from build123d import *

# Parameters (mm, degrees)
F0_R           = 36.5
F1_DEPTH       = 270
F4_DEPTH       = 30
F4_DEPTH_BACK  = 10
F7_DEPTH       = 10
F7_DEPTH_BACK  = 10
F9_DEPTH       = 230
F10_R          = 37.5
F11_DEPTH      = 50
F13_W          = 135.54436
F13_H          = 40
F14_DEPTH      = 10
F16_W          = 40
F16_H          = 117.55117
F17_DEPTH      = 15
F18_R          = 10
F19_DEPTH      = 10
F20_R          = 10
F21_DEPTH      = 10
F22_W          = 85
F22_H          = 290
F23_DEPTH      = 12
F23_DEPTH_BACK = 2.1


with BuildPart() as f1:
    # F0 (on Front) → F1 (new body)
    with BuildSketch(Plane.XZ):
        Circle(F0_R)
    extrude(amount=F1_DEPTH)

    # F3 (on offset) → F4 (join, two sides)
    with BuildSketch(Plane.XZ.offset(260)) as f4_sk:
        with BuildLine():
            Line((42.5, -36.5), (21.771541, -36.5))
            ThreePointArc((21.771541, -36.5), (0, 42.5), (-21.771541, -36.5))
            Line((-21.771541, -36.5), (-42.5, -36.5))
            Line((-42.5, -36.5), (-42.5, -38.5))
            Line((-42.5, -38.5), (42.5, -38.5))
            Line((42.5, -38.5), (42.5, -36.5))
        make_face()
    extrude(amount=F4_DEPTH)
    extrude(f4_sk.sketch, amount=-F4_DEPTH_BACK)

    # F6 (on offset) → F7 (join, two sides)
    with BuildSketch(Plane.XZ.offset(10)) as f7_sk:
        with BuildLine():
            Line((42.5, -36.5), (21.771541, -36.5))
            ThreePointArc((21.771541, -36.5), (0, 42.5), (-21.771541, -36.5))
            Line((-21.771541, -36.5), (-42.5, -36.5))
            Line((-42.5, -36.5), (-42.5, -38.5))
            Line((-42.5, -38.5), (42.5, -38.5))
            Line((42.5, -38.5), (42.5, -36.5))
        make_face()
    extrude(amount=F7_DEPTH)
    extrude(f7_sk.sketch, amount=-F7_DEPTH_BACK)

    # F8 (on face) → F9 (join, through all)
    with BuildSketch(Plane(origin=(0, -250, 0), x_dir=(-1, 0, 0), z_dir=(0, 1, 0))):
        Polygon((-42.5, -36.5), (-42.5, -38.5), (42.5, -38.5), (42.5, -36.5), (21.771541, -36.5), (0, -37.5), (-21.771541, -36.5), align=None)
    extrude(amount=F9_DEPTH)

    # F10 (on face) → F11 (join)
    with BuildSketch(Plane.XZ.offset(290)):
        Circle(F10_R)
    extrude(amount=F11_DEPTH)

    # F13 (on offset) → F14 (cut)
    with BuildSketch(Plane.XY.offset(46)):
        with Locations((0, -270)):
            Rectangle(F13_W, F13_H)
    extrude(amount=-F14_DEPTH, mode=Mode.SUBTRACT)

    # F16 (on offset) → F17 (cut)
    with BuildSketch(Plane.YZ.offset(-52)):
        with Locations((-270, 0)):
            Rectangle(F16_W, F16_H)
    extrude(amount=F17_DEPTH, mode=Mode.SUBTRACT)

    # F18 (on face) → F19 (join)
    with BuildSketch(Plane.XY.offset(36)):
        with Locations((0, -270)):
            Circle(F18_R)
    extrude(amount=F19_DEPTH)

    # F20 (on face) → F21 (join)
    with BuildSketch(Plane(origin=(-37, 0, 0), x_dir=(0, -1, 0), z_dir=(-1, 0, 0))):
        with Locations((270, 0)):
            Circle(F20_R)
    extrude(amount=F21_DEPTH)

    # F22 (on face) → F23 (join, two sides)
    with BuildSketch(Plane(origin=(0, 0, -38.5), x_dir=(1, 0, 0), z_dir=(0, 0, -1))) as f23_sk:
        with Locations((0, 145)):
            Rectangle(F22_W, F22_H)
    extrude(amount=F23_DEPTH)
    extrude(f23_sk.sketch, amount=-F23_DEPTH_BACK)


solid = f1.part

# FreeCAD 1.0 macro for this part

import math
import FreeCAD as App
import Part
import Sketcher


def add_polygon(sketch, points):
    """Adds a closed chain of lines whose ends are joined by coincident constraints."""
    first, n = sketch.GeometryCount, len(points)
    for a, b in zip(points, points[1:] + points[:1]):
        sketch.addGeometry(Part.LineSegment(App.Vector(*a, 0), App.Vector(*b, 0)), False)
    for i in range(n):
        sketch.addConstraint(Sketcher.Constraint("Coincident", first + i, 2, first + (i + 1) % n, 1))

doc = App.newDocument("Part")
body = doc.addObject("PartDesign::Body", "Body")

# Sketch on XZ plane
sketch1 = doc.addObject("Sketcher::SketchObject", "Sketch")
body.addObject(sketch1)
sketch1.AttachmentSupport = (doc.XZ_Plane, [""])
sketch1.MapMode = "FlatFace"
sketch1.addGeometry(Part.Circle(App.Vector(0, 0, 0), App.Vector(0, 0, 1), 36), False)
sketch1.addConstraint([
    Sketcher.Constraint("Coincident", 0, 3, -1, 1),
    Sketcher.Constraint("Diameter", 0, 73.0),
])
pad1 = doc.addObject("PartDesign::Pad", "Pad")
body.addObject(pad1)
pad1.Profile = sketch1
pad1.Length = 270

# Sketch on XZ plane
sketch2 = doc.addObject("Sketcher::SketchObject", "Sketch001")
body.addObject(sketch2)
sketch2.AttachmentSupport = (doc.XZ_Plane, [""])
sketch2.MapMode = "FlatFace"
sketch2.AttachmentOffset = App.Placement(App.Vector(0, 0, 260), App.Rotation())
sketch2.addGeometry([
    Part.LineSegment(App.Vector(42.5, -36.5, 0), App.Vector(21.8, -36.5, 0)),  # 0
    Part.ArcOfCircle(Part.Circle(App.Vector(0, 0, 0), App.Vector(0, 0, 1), 42.5), math.radians(-59), math.radians(239)),  # 1
    Part.LineSegment(App.Vector(-21.8, -36.5, 0), App.Vector(-42.5, -36.5, 0)),  # 2
    Part.LineSegment(App.Vector(-42.5, -36.5, 0), App.Vector(-42.5, -38.5, 0)),  # 3
    Part.LineSegment(App.Vector(-42.5, -38.5, 0), App.Vector(42.5, -38.5, 0)),  # 4
    Part.LineSegment(App.Vector(42.5, -38.5, 0), App.Vector(42.5, -36.5, 0)),  # 5
], False)
sketch2.addConstraint([
    Sketcher.Constraint("Coincident", 0, 2, 1, 1),
    Sketcher.Constraint("Coincident", 1, 2, 2, 1),
    Sketcher.Constraint("Coincident", 2, 2, 3, 1),
    Sketcher.Constraint("Coincident", 3, 2, 4, 1),
    Sketcher.Constraint("Coincident", 4, 2, 5, 1),
    Sketcher.Constraint("Coincident", 5, 2, 0, 1),
    Sketcher.Constraint("Horizontal", 0),
    Sketcher.Constraint("Horizontal", 2),
    Sketcher.Constraint("Vertical", 3),
    Sketcher.Constraint("Horizontal", 4),
    Sketcher.Constraint("Vertical", 5),
    Sketcher.Constraint("Coincident", 1, 3, -1, 1),
    Sketcher.Constraint("Symmetric", 2, 2, 5, 2, -2),
    Sketcher.Constraint("Radius", 1, 42.5),
    Sketcher.Constraint("DistanceX", 4, 1, 4, 2, 85.0),
    Sketcher.Constraint("DistanceY", 3, 2, 3, 1, 2.0),
    Sketcher.Constraint("DistanceY", 0, 2, -1, 1, 36.5),
])
pad2 = doc.addObject("PartDesign::Pad", "Pad001")
body.addObject(pad2)
pad2.Profile = sketch2
pad2.Type = "TwoLengths"
pad2.Length = 30
pad2.Length2 = 10

# Sketch on XZ plane
sketch3 = doc.addObject("Sketcher::SketchObject", "Sketch002")
body.addObject(sketch3)
sketch3.AttachmentSupport = (doc.XZ_Plane, [""])
sketch3.MapMode = "FlatFace"
sketch3.AttachmentOffset = App.Placement(App.Vector(0, 0, 10), App.Rotation())
sketch3.addGeometry([
    Part.LineSegment(App.Vector(42.5, -36.5, 0), App.Vector(21.8, -36.5, 0)),  # 0
    Part.ArcOfCircle(Part.Circle(App.Vector(0, 0, 0), App.Vector(0, 0, 1), 42.5), math.radians(-59), math.radians(239)),  # 1
    Part.LineSegment(App.Vector(-21.8, -36.5, 0), App.Vector(-42.5, -36.5, 0)),  # 2
    Part.LineSegment(App.Vector(-42.5, -36.5, 0), App.Vector(-42.5, -38.5, 0)),  # 3
    Part.LineSegment(App.Vector(-42.5, -38.5, 0), App.Vector(42.5, -38.5, 0)),  # 4
    Part.LineSegment(App.Vector(42.5, -38.5, 0), App.Vector(42.5, -36.5, 0)),  # 5
], False)
sketch3.addConstraint([
    Sketcher.Constraint("Coincident", 0, 2, 1, 1),
    Sketcher.Constraint("Coincident", 1, 2, 2, 1),
    Sketcher.Constraint("Coincident", 2, 2, 3, 1),
    Sketcher.Constraint("Coincident", 3, 2, 4, 1),
    Sketcher.Constraint("Coincident", 4, 2, 5, 1),
    Sketcher.Constraint("Coincident", 5, 2, 0, 1),
    Sketcher.Constraint("Horizontal", 0),
    Sketcher.Constraint("Horizontal", 2),
    Sketcher.Constraint("Vertical", 3),
    Sketcher.Constraint("Horizontal", 4),
    Sketcher.Constraint("Vertical", 5),
    Sketcher.Constraint("Coincident", 1, 3, -1, 1),
    Sketcher.Constraint("Symmetric", 2, 2, 5, 2, -2),
    Sketcher.Constraint("Radius", 1, 42.5),
    Sketcher.Constraint("DistanceX", 4, 1, 4, 2, 85.0),
    Sketcher.Constraint("DistanceY", 3, 2, 3, 1, 2.0),
    Sketcher.Constraint("DistanceY", 0, 2, -1, 1, 36.5),
])
pad3 = doc.addObject("PartDesign::Pad", "Pad002")
body.addObject(pad3)
pad3.Profile = sketch3
pad3.Type = "TwoLengths"
pad3.Length = 10
pad3.Length2 = 10

# Sketch on XZ plane
sketch4 = doc.addObject("Sketcher::SketchObject", "Sketch003")
body.addObject(sketch4)
sketch4.AttachmentSupport = (doc.XZ_Plane, [""])
sketch4.MapMode = "FlatFace"
sketch4.AttachmentOffset = App.Placement(App.Vector(0, 0, 250), App.Rotation())
add_polygon(sketch4, [(42.5, -36.5), (42.5, -38.5), (-42.5, -38.5), (-42.5, -36.5), (-21.8, -36.5), (0, -37.5), (21.8, -36.5)])  # lines 0-6
sketch4.addConstraint([
    Sketcher.Constraint("Vertical", 0),
    Sketcher.Constraint("Horizontal", 1),
    Sketcher.Constraint("Vertical", 2),
    Sketcher.Constraint("Horizontal", 3),
    Sketcher.Constraint("Horizontal", 6),
    Sketcher.Constraint("Symmetric", 3, 2, 5, 2, -2),
    Sketcher.Constraint("PointOnObject", 4, 2, -2),
    Sketcher.Constraint("Equal", 3, 6),
    Sketcher.Constraint("DistanceX", 1, 2, 1, 1, 85.0),
    Sketcher.Constraint("DistanceY", 0, 2, 0, 1, 2.0),
    Sketcher.Constraint("DistanceY", 4, 2, 3, 2, 1.0),
    Sketcher.Constraint("DistanceY", 0, 2, -1, 1, 38.5),
    Sketcher.Constraint("DistanceX", 3, 1, 3, 2, 20.728459),
])
pad4 = doc.addObject("PartDesign::Pad", "Pad003")
body.addObject(pad4)
pad4.Profile = sketch4
pad4.Type = "UpToLast"
pad4.Reversed = True

# Sketch on XZ plane
sketch5 = doc.addObject("Sketcher::SketchObject", "Sketch004")
body.addObject(sketch5)
sketch5.AttachmentSupport = (doc.XZ_Plane, [""])
sketch5.MapMode = "FlatFace"
sketch5.AttachmentOffset = App.Placement(App.Vector(0, 0, 290), App.Rotation())
sketch5.addGeometry(Part.Circle(App.Vector(0, 0, 0), App.Vector(0, 0, 1), 38), False)
sketch5.addConstraint([
    Sketcher.Constraint("Coincident", 0, 3, -1, 1),
    Sketcher.Constraint("Diameter", 0, 75.0),
])
pad5 = doc.addObject("PartDesign::Pad", "Pad004")
body.addObject(pad5)
pad5.Profile = sketch5
pad5.Length = 50

# Sketch on XY plane
sketch6 = doc.addObject("Sketcher::SketchObject", "Sketch005")
body.addObject(sketch6)
sketch6.AttachmentSupport = (doc.XY_Plane, [""])
sketch6.MapMode = "FlatFace"
sketch6.AttachmentOffset = App.Placement(App.Vector(0, 0, 46), App.Rotation())
add_polygon(sketch6, [(-68, -250), (-68, -290), (68, -290), (68, -250)])  # lines 0-3
sketch6.addConstraint([
    Sketcher.Constraint("Vertical", 0),
    Sketcher.Constraint("Horizontal", 1),
    Sketcher.Constraint("Vertical", 2),
    Sketcher.Constraint("Horizontal", 3),
    Sketcher.Constraint("DistanceY", 0, 2, 0, 1, 40.0),
    Sketcher.Constraint("DistanceY", 0, 2, -1, 1, 290.0),
    Sketcher.Constraint("DistanceX", 1, 1, 1, 2, 135.54436),
    Sketcher.Constraint("DistanceX", 0, 2, -1, 1, 67.77218),
])
pocket1 = doc.addObject("PartDesign::Pocket", "Pocket")
body.addObject(pocket1)
pocket1.Profile = sketch6
pocket1.Length = 10

# Sketch on YZ plane
sketch7 = doc.addObject("Sketcher::SketchObject", "Sketch006")
body.addObject(sketch7)
sketch7.AttachmentSupport = (doc.YZ_Plane, [""])
sketch7.MapMode = "FlatFace"
sketch7.AttachmentOffset = App.Placement(App.Vector(0, 0, -52), App.Rotation())
add_polygon(sketch7, [(-290, 59), (-290, -59), (-250, -59), (-250, 59)])  # lines 0-3
sketch7.addConstraint([
    Sketcher.Constraint("Vertical", 0),
    Sketcher.Constraint("Horizontal", 1),
    Sketcher.Constraint("Vertical", 2),
    Sketcher.Constraint("Horizontal", 3),
    Sketcher.Constraint("DistanceX", 1, 1, 1, 2, 40.0),
    Sketcher.Constraint("DistanceX", 0, 2, -1, 1, 290.0),
    Sketcher.Constraint("DistanceY", 0, 2, 0, 1, 117.55117),
    Sketcher.Constraint("DistanceY", 0, 2, -1, 1, 58.775585),
])
pocket2 = doc.addObject("PartDesign::Pocket", "Pocket001")
body.addObject(pocket2)
pocket2.Profile = sketch7
pocket2.Length = 15
pocket2.Reversed = True

# Sketch on XY plane
sketch8 = doc.addObject("Sketcher::SketchObject", "Sketch007")
body.addObject(sketch8)
sketch8.AttachmentSupport = (doc.XY_Plane, [""])
sketch8.MapMode = "FlatFace"
sketch8.AttachmentOffset = App.Placement(App.Vector(0, 0, 36), App.Rotation())
sketch8.addGeometry(Part.Circle(App.Vector(0, -270, 0), App.Vector(0, 0, 1), 10), False)
sketch8.addConstraint([
    Sketcher.Constraint("PointOnObject", 0, 3, -2),
    Sketcher.Constraint("Diameter", 0, 20.0),
    Sketcher.Constraint("DistanceY", 0, 3, -1, 1, 270.0),
])
pad6 = doc.addObject("PartDesign::Pad", "Pad005")
body.addObject(pad6)
pad6.Profile = sketch8
pad6.Length = 10

# Sketch on YZ plane
sketch9 = doc.addObject("Sketcher::SketchObject", "Sketch008")
body.addObject(sketch9)
sketch9.AttachmentSupport = (doc.YZ_Plane, [""])
sketch9.MapMode = "FlatFace"
sketch9.AttachmentOffset = App.Placement(App.Vector(0, 0, -37), App.Rotation())
sketch9.addGeometry(Part.Circle(App.Vector(-270, 0, 0), App.Vector(0, 0, 1), 10), False)
sketch9.addConstraint([
    Sketcher.Constraint("PointOnObject", 0, 3, -1),
    Sketcher.Constraint("Diameter", 0, 20.0),
    Sketcher.Constraint("DistanceX", 0, 3, -1, 1, 270.0),
])
pad7 = doc.addObject("PartDesign::Pad", "Pad006")
body.addObject(pad7)
pad7.Profile = sketch9
pad7.Length = 10
pad7.Reversed = True

# Sketch on XY plane
sketch10 = doc.addObject("Sketcher::SketchObject", "Sketch009")
body.addObject(sketch10)
sketch10.AttachmentSupport = (doc.XY_Plane, [""])
sketch10.MapMode = "FlatFace"
sketch10.AttachmentOffset = App.Placement(App.Vector(0, 0, -38.5), App.Rotation())
add_polygon(sketch10, [(-42, -290), (-42, 0), (42, 0), (42, -290)])  # lines 0-3
sketch10.addConstraint([
    Sketcher.Constraint("Vertical", 0),
    Sketcher.Constraint("Horizontal", 1),
    Sketcher.Constraint("Vertical", 2),
    Sketcher.Constraint("Horizontal", 3),
    Sketcher.Constraint("Symmetric", 0, 2, 1, 2, -1, 1),
    Sketcher.Constraint("DistanceX", 1, 1, 1, 2, 85.0),
    Sketcher.Constraint("DistanceY", 0, 1, 0, 2, 290.0),
])
pad8 = doc.addObject("PartDesign::Pad", "Pad007")
body.addObject(pad8)
pad8.Profile = sketch10
pad8.Type = "TwoLengths"
pad8.Length = 12
pad8.Length2 = 2.1
pad8.Reversed = True

doc.recompute()
